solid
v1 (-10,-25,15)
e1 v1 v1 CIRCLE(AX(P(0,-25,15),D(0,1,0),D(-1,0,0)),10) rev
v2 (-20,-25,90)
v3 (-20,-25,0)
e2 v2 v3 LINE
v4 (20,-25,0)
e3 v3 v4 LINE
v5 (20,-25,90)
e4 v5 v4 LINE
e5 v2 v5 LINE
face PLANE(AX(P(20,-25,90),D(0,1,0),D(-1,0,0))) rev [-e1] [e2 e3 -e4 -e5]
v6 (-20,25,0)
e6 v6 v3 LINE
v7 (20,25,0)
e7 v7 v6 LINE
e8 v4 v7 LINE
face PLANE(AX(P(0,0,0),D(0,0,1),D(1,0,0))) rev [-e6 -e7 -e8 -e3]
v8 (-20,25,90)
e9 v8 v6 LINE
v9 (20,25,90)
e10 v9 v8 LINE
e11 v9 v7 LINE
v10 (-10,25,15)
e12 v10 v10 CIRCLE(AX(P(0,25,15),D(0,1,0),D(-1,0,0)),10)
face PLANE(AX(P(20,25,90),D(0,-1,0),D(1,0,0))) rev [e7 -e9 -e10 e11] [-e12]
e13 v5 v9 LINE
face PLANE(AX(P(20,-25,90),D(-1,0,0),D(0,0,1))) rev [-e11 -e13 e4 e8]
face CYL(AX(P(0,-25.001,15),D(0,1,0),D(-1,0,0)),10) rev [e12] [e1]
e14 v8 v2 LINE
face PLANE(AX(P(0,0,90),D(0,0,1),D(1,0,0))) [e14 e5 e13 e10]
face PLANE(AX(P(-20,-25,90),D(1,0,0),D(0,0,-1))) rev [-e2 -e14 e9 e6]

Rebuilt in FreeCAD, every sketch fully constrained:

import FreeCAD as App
import Part
import Sketcher

V = App.Vector
Q = App.Units.Quantity


def add_polygon(sketch, points):
    """Adds a closed chain of lines whose ends are joined by coincident constraints."""
    first, n = sketch.GeometryCount, len(points)
    for a, b in zip(points, points[1:] + points[:1]):
        sketch.addGeometry(Part.LineSegment(App.Vector(*a, 0), App.Vector(*b, 0)), False)
    for i in range(n):
        sketch.addConstraint(Sketcher.Constraint("Coincident", first + i, 2, first + (i + 1) % n, 1))

doc = App.newDocument("Part")
body = doc.addObject("PartDesign::Body", "Body")

sketch1 = body.newObject("Sketcher::SketchObject", "Sketch")
sketch1.AttachmentSupport = (doc.getObject("XY_Plane"), [""])
sketch1.MapMode = "FlatFace"
add_polygon(sketch1, [(-20, 25), (-20, -25), (20, -25), (20, 25)])
sketch1.addConstraint([
    Sketcher.Constraint("Vertical", 0),
    Sketcher.Constraint("Horizontal", 1),
    Sketcher.Constraint("Vertical", 2),
    Sketcher.Constraint("Horizontal", 3),
    Sketcher.Constraint("Symmetric", 0, 2, 2, 2, -1, 1),
    Sketcher.Constraint("DistanceX", 1, 1, 1, 2, Q("40 mm")),
    Sketcher.Constraint("DistanceY", 0, 2, 0, 1, Q("50 mm")),
])
pad1 = body.newObject("PartDesign::Pad", "Pad")
pad1.Profile = sketch1
pad1.Length = 90

sketch2 = body.newObject("Sketcher::SketchObject", "Sketch001")
sketch2.AttachmentSupport = (doc.getObject("XZ_Plane"), [""])
sketch2.MapMode = "FlatFace"
sketch2.AttachmentOffset = App.Placement(V(0, 0, -25), App.Rotation())
sketch2.addGeometry(Part.Circle(V(0, 15, 0), V(0, 0, 1), 10), False)
sketch2.addConstraint([
    Sketcher.Constraint("PointOnObject", 0, 3, -2),
    Sketcher.Constraint("Diameter", 0, Q("20 mm")),
    Sketcher.Constraint("DistanceY", -1, 1, 0, 3, Q("15 mm")),
])
pocket1 = body.newObject("PartDesign::Pocket", "Pocket")
pocket1.Profile = sketch2
pocket1.Type = "UpToFirst"
pocket1.Reversed = True

doc.recompute()
